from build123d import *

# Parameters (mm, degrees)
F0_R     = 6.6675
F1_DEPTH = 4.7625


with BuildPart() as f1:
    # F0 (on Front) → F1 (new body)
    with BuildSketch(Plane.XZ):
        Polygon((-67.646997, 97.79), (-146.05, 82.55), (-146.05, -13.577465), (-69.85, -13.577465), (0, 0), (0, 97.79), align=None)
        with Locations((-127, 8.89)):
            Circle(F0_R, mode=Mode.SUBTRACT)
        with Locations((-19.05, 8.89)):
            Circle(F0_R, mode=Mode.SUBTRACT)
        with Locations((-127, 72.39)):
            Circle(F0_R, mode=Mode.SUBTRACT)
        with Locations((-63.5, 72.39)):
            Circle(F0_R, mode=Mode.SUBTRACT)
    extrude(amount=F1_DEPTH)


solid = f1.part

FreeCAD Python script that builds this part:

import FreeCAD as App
import Part
import Sketcher
Q = App.Units.Quantity

doc = App.newDocument("Part")
body = doc.addObject("PartDesign::Body", "Body")

# Sketch on XZ plane
sketch1 = doc.addObject("Sketcher::SketchObject", "Sketch")
body.addObject(sketch1)
sketch1.AttachmentSupport = (doc.XZ_Plane, [""])
sketch1.MapMode = "FlatFace"
sketch1.addGeometry([
    Part.LineSegment(App.Vector(-67.646997, 97.79, 0), App.Vector(-146.05, 82.55, 0)),  # 0
    Part.LineSegment(App.Vector(-146.05, 82.55, 0), App.Vector(-146.05, -13.577465, 0)),  # 1
    Part.LineSegment(App.Vector(-146.05, -13.577465, 0), App.Vector(-69.85, -13.577465, 0)),  # 2
    Part.LineSegment(App.Vector(-69.85, -13.577465, 0), App.Vector(0, 0, 0)),  # 3
    Part.LineSegment(App.Vector(0, 0, 0), App.Vector(0, 97.79, 0)),  # 4
    Part.LineSegment(App.Vector(0, 97.79, 0), App.Vector(-67.646997, 97.79, 0)),  # 5
    Part.Circle(App.Vector(-127, 8.89, 0), App.Vector(0, 0, 1), 6.6675),  # 6
    Part.Circle(App.Vector(-19.05, 8.89, 0), App.Vector(0, 0, 1), 6.6675),  # 7
    Part.Circle(App.Vector(-127, 72.39, 0), App.Vector(0, 0, 1), 6.6675),  # 8
    Part.Circle(App.Vector(-63.5, 72.39, 0), App.Vector(0, 0, 1), 6.6675),  # 9
], False)
sketch1.addConstraint([
    Sketcher.Constraint("Coincident", 0, 2, 1, 1),
    Sketcher.Constraint("Coincident", 1, 2, 2, 1),
    Sketcher.Constraint("Coincident", 2, 2, 3, 1),
    Sketcher.Constraint("Coincident", 3, 2, 4, 1),
    Sketcher.Constraint("Coincident", 4, 2, 5, 1),
    Sketcher.Constraint("Coincident", 5, 2, 0, 1),
    Sketcher.Constraint("Vertical", 1),
    Sketcher.Constraint("Horizontal", 2),
    Sketcher.Constraint("Vertical", 4),
    Sketcher.Constraint("Horizontal", 5),
    Sketcher.Constraint("Coincident", 3, 2, -1, 1),
    Sketcher.Constraint("Equal", 6, 7),
    Sketcher.Constraint("Equal", 7, 8),
    Sketcher.Constraint("Equal", 8, 9),
    Sketcher.Constraint("Parallel", 0, 3),
    Sketcher.Constraint("Horizontal", 6, 3, 7, 3),
    Sketcher.Constraint("Horizontal", 8, 3, 9, 3),
    Sketcher.Constraint("Vertical", 6, 3, 8, 3),
    Sketcher.Constraint("DistanceX", 2, 1, 2, 2, Q("3 in")),
    Sketcher.Constraint("Diameter", 6, Q("0.525 in")),
    Sketcher.Constraint("DistanceX", 6, 3, -1, 1, Q("5 in")),
    Sketcher.Constraint("Angle", 0, Q("-169 deg")),
    Sketcher.Constraint("DistanceX", 0, 2, 7, 3, Q("5 in")),
    Sketcher.Constraint("DistanceY", 9, 3, 4, 2, Q("1 in")),
    Sketcher.Constraint("DistanceY", 4, 1, 4, 2, Q("3.85 in")),
    Sketcher.Constraint("DistanceX", 9, 3, -1, 1, Q("2.5 in")),
    Sketcher.Constraint("DistanceY", 6, 3, 8, 3, Q("2.5 in")),
    Sketcher.Constraint("DistanceY", 8, 3, 0, 2, Q("0.4 in")),
    Sketcher.Constraint("DistanceX", 7, 3, -1, 1, Q("0.75 in")),
])
pad1 = doc.addObject("PartDesign::Pad", "Pad")
body.addObject(pad1)
pad1.Profile = sketch1
pad1.Length = Q("0.1875 in")

doc.recompute()
